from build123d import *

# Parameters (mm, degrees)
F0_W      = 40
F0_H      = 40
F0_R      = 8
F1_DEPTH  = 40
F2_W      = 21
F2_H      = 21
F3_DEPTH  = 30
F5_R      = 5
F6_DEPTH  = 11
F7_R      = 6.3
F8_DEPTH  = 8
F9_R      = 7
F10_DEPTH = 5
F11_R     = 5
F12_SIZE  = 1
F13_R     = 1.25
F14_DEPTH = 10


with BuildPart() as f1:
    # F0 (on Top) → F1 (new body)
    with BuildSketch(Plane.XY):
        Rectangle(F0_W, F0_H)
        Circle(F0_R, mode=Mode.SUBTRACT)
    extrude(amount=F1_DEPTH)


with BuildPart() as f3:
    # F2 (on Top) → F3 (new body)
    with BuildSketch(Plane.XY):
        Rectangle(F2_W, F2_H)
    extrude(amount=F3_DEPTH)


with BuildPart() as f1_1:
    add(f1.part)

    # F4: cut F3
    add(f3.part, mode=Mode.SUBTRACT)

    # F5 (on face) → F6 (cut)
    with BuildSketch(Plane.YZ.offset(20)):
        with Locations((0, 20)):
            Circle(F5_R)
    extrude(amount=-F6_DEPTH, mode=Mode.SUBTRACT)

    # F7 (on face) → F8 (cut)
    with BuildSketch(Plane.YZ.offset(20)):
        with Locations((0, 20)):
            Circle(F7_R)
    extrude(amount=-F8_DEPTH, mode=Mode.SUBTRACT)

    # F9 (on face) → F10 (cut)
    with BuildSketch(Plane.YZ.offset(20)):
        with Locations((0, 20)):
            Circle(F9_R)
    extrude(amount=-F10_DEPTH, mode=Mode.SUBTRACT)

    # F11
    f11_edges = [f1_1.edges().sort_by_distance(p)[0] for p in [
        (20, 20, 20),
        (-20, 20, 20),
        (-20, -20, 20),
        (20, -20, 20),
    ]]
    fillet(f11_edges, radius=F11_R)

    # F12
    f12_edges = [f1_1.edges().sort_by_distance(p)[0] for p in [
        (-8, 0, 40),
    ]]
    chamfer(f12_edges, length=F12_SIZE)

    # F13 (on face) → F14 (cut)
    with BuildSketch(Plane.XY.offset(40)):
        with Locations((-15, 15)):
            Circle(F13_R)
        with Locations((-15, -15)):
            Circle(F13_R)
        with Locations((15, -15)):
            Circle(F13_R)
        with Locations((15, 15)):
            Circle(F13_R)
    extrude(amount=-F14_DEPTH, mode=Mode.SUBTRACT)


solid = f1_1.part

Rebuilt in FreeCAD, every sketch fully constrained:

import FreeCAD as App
import Part
import Sketcher
from FreeCAD import Vector
Q = App.Units.Quantity


def edges_at(feature, points):
    """Names of the edges that pass closest to the given points."""
    edges = feature.Shape.Edges
    near = lambda p: min(range(len(edges)), key=lambda i: edges[i].distToShape(Part.Vertex(*p))[0])
    return sorted({f"Edge{near(p) + 1}" for p in points})

doc = App.newDocument("Part")
body = doc.addObject("PartDesign::Body", "Body")

# Sketch on XY plane
sketch1 = doc.addObject("Sketcher::SketchObject", "Sketch")
body.addObject(sketch1)
sketch1.AttachmentSupport = (doc.XY_Plane, [""])
sketch1.MapMode = "FlatFace"
sketch1.addGeometry(Part.LineSegment(Vector(-20, 20, 0), Vector(-20, -20, 0)), False)
sketch1.addGeometry(Part.LineSegment(Vector(-20, -20, 0), Vector(20, -20, 0)), False)
sketch1.addGeometry(Part.LineSegment(Vector(20, -20, 0), Vector(20, 20, 0)), False)
sketch1.addGeometry(Part.LineSegment(Vector(20, 20, 0), Vector(-20, 20, 0)), False)
sketch1.addGeometry(Part.Circle(Vector(0, 0, 0), Vector(0, 0, 1), 8), False)
sketch1.addConstraint(Sketcher.Constraint("Coincident", 0, 2, 1, 1))
sketch1.addConstraint(Sketcher.Constraint("Coincident", 1, 2, 2, 1))
sketch1.addConstraint(Sketcher.Constraint("Coincident", 2, 2, 3, 1))
sketch1.addConstraint(Sketcher.Constraint("Coincident", 3, 2, 0, 1))
sketch1.addConstraint(Sketcher.Constraint("Vertical", 0))
sketch1.addConstraint(Sketcher.Constraint("Horizontal", 1))
sketch1.addConstraint(Sketcher.Constraint("Vertical", 2))
sketch1.addConstraint(Sketcher.Constraint("Horizontal", 3))
sketch1.addConstraint(Sketcher.Constraint("Coincident", 4, 3, -1, 1))
sketch1.addConstraint(Sketcher.Constraint("Symmetric", 0, 2, 2, 2, -1, 1))
sketch1.addConstraint(Sketcher.Constraint("Equal", 3, 0))
sketch1.addConstraint(Sketcher.Constraint("Diameter", 4, Q("16 mm")))
sketch1.addConstraint(Sketcher.Constraint("DistanceX", 1, 1, 1, 2, Q("40 mm")))
pad1 = doc.addObject("PartDesign::Pad", "Pad")
body.addObject(pad1)
pad1.Profile = sketch1
pad1.Length = 40
body2 = doc.addObject("PartDesign::Body", "Body001")

# Sketch on XY plane
sketch2 = doc.addObject("Sketcher::SketchObject", "Sketch001")
body2.addObject(sketch2)
sketch2.AttachmentSupport = (doc.getObject("XY_Plane001"), [""])
sketch2.MapMode = "FlatFace"
sketch2.addGeometry(Part.LineSegment(Vector(-10, 10, 0), Vector(-10, -10, 0)), False)
sketch2.addGeometry(Part.LineSegment(Vector(-10, -10, 0), Vector(10, -10, 0)), False)
sketch2.addGeometry(Part.LineSegment(Vector(10, -10, 0), Vector(10, 10, 0)), False)
sketch2.addGeometry(Part.LineSegment(Vector(10, 10, 0), Vector(-10, 10, 0)), False)
sketch2.addConstraint(Sketcher.Constraint("Coincident", 0, 2, 1, 1))
sketch2.addConstraint(Sketcher.Constraint("Coincident", 1, 2, 2, 1))
sketch2.addConstraint(Sketcher.Constraint("Coincident", 2, 2, 3, 1))
sketch2.addConstraint(Sketcher.Constraint("Coincident", 3, 2, 0, 1))
sketch2.addConstraint(Sketcher.Constraint("Vertical", 0))
sketch2.addConstraint(Sketcher.Constraint("Horizontal", 1))
sketch2.addConstraint(Sketcher.Constraint("Vertical", 2))
sketch2.addConstraint(Sketcher.Constraint("Horizontal", 3))
sketch2.addConstraint(Sketcher.Constraint("Symmetric", 0, 2, 2, 2, -1, 1))
sketch2.addConstraint(Sketcher.Constraint("Equal", 3, 0))
sketch2.addConstraint(Sketcher.Constraint("DistanceX", 1, 1, 1, 2, Q("21 mm")))
pad2 = doc.addObject("PartDesign::Pad", "Pad001")
body2.addObject(pad2)
pad2.Profile = sketch2
pad2.Length = 30
doc.recompute()

boolean = doc.addObject("PartDesign::Boolean", "Boolean")
body.addObject(boolean)
boolean.Type = "Cut"
boolean.addObjects([body2])

# Sketch on YZ plane
sketch3 = doc.addObject("Sketcher::SketchObject", "Sketch002")
body.addObject(sketch3)
sketch3.AttachmentSupport = (doc.YZ_Plane, [""])
sketch3.MapMode = "FlatFace"
sketch3.AttachmentOffset = App.Placement(Vector(0, 0, 20), App.Rotation())
sketch3.addGeometry(Part.Circle(Vector(0, 20, 0), Vector(0, 0, 1), 5), False)
sketch3.addConstraint(Sketcher.Constraint("PointOnObject", 0, 3, -2))
sketch3.addConstraint(Sketcher.Constraint("Diameter", 0, Q("10 mm")))
sketch3.addConstraint(Sketcher.Constraint("DistanceY", -1, 1, 0, 3, Q("20 mm")))
pocket1 = doc.addObject("PartDesign::Pocket", "Pocket")
body.addObject(pocket1)
pocket1.Profile = sketch3
pocket1.Length = 11

# Sketch on YZ plane
sketch4 = doc.addObject("Sketcher::SketchObject", "Sketch003")
body.addObject(sketch4)
sketch4.AttachmentSupport = (doc.YZ_Plane, [""])
sketch4.MapMode = "FlatFace"
sketch4.AttachmentOffset = App.Placement(Vector(0, 0, 20), App.Rotation())
sketch4.addGeometry(Part.Circle(Vector(0, 20, 0), Vector(0, 0, 1), 6), False)
sketch4.addConstraint(Sketcher.Constraint("PointOnObject", 0, 3, -2))
sketch4.addConstraint(Sketcher.Constraint("Diameter", 0, Q("12.6 mm")))
sketch4.addConstraint(Sketcher.Constraint("DistanceY", -1, 1, 0, 3, Q("20 mm")))
pocket2 = doc.addObject("PartDesign::Pocket", "Pocket001")
body.addObject(pocket2)
pocket2.Profile = sketch4
pocket2.Length = 8

# Sketch on YZ plane
sketch5 = doc.addObject("Sketcher::SketchObject", "Sketch004")
body.addObject(sketch5)
sketch5.AttachmentSupport = (doc.YZ_Plane, [""])
sketch5.MapMode = "FlatFace"
sketch5.AttachmentOffset = App.Placement(Vector(0, 0, 20), App.Rotation())
sketch5.addGeometry(Part.Circle(Vector(0, 20, 0), Vector(0, 0, 1), 7), False)
sketch5.addConstraint(Sketcher.Constraint("PointOnObject", 0, 3, -2))
sketch5.addConstraint(Sketcher.Constraint("Diameter", 0, Q("14 mm")))
sketch5.addConstraint(Sketcher.Constraint("DistanceY", -1, 1, 0, 3, Q("20 mm")))
pocket3 = doc.addObject("PartDesign::Pocket", "Pocket002")
body.addObject(pocket3)
pocket3.Profile = sketch5
pocket3.Length = 5
doc.recompute()

fillet = doc.addObject("PartDesign::Fillet", "Fillet")
body.addObject(fillet)
fillet.Base = (pocket3, edges_at(pocket3, [
    (20, 20, 20),
    (-20, 20, 20),
    (-20, -20, 20),
    (20, -20, 20),
]))
fillet.Radius = 5
doc.recompute()

chamfer = doc.addObject("PartDesign::Chamfer", "Chamfer")
body.addObject(chamfer)
chamfer.Base = (fillet, edges_at(fillet, [(-8, 0, 40)]))
chamfer.Size = 1

# Sketch on XY plane
sketch6 = doc.addObject("Sketcher::SketchObject", "Sketch005")
body.addObject(sketch6)
sketch6.AttachmentSupport = (doc.XY_Plane, [""])
sketch6.MapMode = "FlatFace"
sketch6.AttachmentOffset = App.Placement(Vector(0, 0, 40), App.Rotation())
sketch6.addGeometry(Part.Circle(Vector(-15, 15, 0), Vector(0, 0, 1), 1.2), False)
sketch6.addGeometry(Part.Circle(Vector(-15, -15, 0), Vector(0, 0, 1), 1.2), False)
sketch6.addGeometry(Part.Circle(Vector(15, -15, 0), Vector(0, 0, 1), 1.2), False)
sketch6.addGeometry(Part.Circle(Vector(15, 15, 0), Vector(0, 0, 1), 1.2), False)
sketch6.addConstraint(Sketcher.Constraint("Equal", 0, 1))
sketch6.addConstraint(Sketcher.Constraint("Equal", 1, 2))
sketch6.addConstraint(Sketcher.Constraint("Equal", 2, 3))
sketch6.addConstraint(Sketcher.Constraint("Symmetric", 0, 3, 2, 3, -1, 1))
sketch6.addConstraint(Sketcher.Constraint("Symmetric", 1, 3, 3, 3, -1, 1))
sketch6.addConstraint(Sketcher.Constraint("Symmetric", 1, 3, 2, 3, -2))
sketch6.addConstraint(Sketcher.Constraint("Diameter", 0, Q("2.5 mm")))
sketch6.addConstraint(Sketcher.Constraint("DistanceX", 0, 3, -1, 1, Q("15 mm")))
sketch6.addConstraint(Sketcher.Constraint("DistanceY", -1, 1, 0, 3, Q("15 mm")))
pocket4 = doc.addObject("PartDesign::Pocket", "Pocket003")
body.addObject(pocket4)
pocket4.Profile = sketch6
pocket4.Length = 10

doc.recompute()
